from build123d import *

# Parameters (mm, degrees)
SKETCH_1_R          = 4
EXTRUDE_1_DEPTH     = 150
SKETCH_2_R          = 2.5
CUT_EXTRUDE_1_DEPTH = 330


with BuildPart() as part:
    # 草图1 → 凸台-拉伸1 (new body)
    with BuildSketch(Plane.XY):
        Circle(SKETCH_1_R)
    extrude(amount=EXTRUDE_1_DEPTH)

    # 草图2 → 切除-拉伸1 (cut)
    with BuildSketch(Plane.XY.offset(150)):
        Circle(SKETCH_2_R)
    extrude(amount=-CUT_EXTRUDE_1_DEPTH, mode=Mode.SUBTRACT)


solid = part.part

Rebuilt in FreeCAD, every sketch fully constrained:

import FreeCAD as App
import Part
import Sketcher
from FreeCAD import Vector

doc = App.newDocument("Part")
body = doc.addObject("PartDesign::Body", "Body")

# Sketch on XY plane
sketch1 = body.newObject("Sketcher::SketchObject", "Sketch")
sketch1.AttachmentSupport = (doc.getObject("XY_Plane"), [""])
sketch1.MapMode = "FlatFace"
sketch1.addGeometry(Part.Circle(Vector(0, 0, 0), Vector(0, 0, 1), 4), False)
sketch1.addConstraint([
    Sketcher.Constraint("Coincident", 0, 3, -1, 1),
    Sketcher.Constraint("Diameter", 0, 8.0),
])
pad1 = body.newObject("PartDesign::Pad", "Pad")
pad1.Profile = sketch1
pad1.Length = 150

# Sketch on XY plane
sketch2 = body.newObject("Sketcher::SketchObject", "Sketch001")
sketch2.AttachmentSupport = (doc.getObject("XY_Plane"), [""])
sketch2.MapMode = "FlatFace"
sketch2.AttachmentOffset = App.Placement(Vector(0, 0, 150), App.Rotation())
sketch2.addGeometry(Part.Circle(Vector(0, 0, 0), Vector(0, 0, 1), 2.5), False)
sketch2.addConstraint([
    Sketcher.Constraint("Coincident", 0, 3, -1, 1),
    Sketcher.Constraint("Diameter", 0, 5.0),
])
pocket1 = body.newObject("PartDesign::Pocket", "Pocket")
pocket1.Profile = sketch2
pocket1.Length = 330

doc.recompute()
